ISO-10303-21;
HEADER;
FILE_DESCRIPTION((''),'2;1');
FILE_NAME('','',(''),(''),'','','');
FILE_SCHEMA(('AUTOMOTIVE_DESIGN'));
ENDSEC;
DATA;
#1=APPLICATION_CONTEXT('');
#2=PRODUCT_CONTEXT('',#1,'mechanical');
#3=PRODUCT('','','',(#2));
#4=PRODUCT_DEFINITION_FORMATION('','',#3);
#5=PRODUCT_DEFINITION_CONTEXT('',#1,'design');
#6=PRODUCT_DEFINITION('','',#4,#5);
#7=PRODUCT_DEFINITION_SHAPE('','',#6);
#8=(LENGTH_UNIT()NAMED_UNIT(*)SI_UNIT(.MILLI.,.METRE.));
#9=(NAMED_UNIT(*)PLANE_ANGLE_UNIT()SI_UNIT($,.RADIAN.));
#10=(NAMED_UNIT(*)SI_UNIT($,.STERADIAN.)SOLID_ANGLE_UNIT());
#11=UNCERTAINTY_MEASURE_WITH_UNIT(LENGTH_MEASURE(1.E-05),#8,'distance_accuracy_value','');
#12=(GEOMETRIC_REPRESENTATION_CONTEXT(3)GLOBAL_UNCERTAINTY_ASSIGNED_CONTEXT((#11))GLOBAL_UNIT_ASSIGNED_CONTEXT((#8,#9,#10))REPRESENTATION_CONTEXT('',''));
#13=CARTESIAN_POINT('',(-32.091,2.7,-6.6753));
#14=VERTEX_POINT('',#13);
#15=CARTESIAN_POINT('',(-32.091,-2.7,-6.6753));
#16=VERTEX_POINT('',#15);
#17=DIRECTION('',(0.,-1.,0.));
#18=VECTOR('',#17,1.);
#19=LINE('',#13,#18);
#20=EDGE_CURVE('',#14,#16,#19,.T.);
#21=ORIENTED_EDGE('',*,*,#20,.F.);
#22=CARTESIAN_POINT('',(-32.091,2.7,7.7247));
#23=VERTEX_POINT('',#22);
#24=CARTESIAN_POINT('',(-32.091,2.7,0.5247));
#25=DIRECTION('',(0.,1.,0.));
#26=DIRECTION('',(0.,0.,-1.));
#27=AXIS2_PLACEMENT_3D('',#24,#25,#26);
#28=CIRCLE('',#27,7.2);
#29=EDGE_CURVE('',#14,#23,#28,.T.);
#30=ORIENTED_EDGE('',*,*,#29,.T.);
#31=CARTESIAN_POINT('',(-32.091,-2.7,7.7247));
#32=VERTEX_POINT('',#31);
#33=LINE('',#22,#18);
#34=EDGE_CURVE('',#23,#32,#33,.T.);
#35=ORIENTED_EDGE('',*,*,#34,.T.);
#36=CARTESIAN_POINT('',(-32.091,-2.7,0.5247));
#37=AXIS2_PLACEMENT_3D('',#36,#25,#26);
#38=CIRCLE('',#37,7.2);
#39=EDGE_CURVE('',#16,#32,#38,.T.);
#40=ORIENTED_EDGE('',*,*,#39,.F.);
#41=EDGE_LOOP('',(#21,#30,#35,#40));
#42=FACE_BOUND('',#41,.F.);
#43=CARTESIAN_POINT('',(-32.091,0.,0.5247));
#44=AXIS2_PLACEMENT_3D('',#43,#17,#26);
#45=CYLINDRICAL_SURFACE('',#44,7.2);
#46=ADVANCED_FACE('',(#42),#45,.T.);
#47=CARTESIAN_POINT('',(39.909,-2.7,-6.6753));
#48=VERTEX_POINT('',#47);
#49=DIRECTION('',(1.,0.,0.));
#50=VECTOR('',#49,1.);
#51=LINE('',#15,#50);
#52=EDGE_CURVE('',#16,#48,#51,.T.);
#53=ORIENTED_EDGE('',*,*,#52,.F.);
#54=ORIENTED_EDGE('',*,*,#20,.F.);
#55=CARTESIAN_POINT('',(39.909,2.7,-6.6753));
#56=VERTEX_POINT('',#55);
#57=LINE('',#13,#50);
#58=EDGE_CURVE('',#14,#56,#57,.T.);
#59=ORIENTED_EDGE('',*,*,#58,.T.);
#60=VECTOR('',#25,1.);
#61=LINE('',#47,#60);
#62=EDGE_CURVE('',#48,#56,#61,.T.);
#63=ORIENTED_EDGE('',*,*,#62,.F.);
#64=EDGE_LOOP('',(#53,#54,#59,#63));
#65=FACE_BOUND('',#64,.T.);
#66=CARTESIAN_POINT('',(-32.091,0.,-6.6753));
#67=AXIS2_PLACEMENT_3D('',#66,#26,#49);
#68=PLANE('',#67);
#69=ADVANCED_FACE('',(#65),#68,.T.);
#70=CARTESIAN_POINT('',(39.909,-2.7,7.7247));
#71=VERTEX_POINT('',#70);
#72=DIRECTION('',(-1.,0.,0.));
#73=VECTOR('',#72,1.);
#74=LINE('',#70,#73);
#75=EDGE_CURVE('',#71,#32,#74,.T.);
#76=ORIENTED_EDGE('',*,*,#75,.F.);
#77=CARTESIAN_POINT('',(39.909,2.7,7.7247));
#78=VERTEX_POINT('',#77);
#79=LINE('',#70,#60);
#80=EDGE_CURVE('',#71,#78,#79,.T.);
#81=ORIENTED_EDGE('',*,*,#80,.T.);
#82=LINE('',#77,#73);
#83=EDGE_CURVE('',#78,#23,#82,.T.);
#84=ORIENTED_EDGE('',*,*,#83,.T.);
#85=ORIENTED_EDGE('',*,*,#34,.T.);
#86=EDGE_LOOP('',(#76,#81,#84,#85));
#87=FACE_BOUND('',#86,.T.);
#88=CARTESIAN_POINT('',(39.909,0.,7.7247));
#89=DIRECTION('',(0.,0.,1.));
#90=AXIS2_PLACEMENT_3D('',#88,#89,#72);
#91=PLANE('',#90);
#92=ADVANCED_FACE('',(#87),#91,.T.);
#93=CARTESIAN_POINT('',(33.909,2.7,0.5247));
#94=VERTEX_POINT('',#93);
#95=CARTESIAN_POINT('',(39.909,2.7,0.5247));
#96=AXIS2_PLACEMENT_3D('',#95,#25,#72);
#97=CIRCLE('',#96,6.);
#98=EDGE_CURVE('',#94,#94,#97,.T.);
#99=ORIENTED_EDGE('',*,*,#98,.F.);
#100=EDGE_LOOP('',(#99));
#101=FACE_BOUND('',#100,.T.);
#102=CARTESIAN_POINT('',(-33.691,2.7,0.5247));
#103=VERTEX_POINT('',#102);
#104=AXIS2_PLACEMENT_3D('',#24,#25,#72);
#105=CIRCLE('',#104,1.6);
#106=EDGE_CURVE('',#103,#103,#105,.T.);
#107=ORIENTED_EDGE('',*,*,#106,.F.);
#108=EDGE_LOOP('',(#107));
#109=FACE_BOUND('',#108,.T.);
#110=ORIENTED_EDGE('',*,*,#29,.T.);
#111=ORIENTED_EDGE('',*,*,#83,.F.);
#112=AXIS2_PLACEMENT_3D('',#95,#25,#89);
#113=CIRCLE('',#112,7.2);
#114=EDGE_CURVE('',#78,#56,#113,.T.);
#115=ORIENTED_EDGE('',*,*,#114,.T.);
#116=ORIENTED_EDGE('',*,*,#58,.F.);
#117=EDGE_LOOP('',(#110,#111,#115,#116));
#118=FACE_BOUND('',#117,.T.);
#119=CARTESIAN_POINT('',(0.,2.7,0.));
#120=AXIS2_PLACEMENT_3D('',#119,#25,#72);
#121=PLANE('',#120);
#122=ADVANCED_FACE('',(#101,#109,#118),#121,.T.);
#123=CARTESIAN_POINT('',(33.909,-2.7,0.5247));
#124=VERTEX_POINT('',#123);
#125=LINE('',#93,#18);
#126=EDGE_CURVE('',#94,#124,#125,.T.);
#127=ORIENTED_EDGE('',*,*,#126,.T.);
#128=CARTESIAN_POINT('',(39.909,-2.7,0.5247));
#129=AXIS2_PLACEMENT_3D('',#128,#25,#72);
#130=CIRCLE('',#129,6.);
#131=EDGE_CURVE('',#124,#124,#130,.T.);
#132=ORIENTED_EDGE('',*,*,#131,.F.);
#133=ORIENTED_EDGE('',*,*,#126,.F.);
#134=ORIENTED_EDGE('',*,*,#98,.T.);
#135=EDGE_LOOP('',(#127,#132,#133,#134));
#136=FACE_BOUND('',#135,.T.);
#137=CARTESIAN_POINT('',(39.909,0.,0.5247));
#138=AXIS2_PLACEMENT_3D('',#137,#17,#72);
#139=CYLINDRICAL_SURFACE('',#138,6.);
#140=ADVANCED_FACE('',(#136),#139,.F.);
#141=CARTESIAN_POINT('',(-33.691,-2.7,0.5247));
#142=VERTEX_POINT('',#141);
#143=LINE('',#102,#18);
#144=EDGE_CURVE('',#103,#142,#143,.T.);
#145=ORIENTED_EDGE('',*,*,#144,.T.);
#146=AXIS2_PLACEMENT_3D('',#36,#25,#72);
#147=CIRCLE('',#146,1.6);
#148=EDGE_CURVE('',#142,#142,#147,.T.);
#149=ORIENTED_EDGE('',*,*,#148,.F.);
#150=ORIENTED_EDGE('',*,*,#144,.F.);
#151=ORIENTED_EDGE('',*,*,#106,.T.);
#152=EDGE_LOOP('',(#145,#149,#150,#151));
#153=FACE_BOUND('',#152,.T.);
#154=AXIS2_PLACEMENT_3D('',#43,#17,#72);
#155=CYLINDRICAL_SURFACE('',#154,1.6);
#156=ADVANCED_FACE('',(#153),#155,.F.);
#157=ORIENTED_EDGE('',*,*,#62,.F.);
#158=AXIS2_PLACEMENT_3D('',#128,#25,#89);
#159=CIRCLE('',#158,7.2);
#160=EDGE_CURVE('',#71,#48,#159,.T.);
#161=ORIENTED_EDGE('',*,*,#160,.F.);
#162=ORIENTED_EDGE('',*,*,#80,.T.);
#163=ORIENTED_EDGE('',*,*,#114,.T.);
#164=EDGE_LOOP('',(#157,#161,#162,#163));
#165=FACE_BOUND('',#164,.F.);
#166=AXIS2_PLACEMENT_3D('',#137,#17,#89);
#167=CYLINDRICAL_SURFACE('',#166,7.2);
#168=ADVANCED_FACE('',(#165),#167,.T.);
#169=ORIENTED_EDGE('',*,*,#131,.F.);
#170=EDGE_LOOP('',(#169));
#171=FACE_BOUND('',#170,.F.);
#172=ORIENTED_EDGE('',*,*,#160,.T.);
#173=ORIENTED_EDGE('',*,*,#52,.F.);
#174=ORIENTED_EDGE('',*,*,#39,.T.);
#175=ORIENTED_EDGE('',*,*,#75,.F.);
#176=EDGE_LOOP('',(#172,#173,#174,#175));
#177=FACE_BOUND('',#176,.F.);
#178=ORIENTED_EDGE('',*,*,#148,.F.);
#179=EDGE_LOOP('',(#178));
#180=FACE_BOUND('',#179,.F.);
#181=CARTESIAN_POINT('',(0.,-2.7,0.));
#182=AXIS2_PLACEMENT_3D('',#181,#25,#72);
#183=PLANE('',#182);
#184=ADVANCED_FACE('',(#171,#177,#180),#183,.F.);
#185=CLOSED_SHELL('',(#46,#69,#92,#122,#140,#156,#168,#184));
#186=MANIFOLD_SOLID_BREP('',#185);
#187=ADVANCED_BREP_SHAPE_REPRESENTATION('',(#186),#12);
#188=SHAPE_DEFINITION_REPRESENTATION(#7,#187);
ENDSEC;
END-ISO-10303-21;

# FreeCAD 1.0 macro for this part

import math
import FreeCAD as App
import Part
import Sketcher
from FreeCAD import Vector
Q = App.Units.Quantity

doc = App.newDocument("Part")
body = doc.addObject("PartDesign::Body", "Body")

# Sketch on XZ plane
sketch1 = body.newObject("Sketcher::SketchObject", "Sketch")
sketch1.AttachmentSupport = (doc.getObject("XZ_Plane"), [""])
sketch1.MapMode = "FlatFace"
sketch1.addGeometry([
    Part.LineSegment(Vector(-32.1, 7.7, 0), Vector(39.9, 7.7, 0)),  # 0
    Part.ArcOfCircle(Part.Circle(Vector(39.9, 0.5, 0), Vector(0, 0, 1), 7.2), math.radians(-90), math.radians(90)),  # 1
    Part.LineSegment(Vector(39.9, -6.7, 0), Vector(-32.1, -6.7, 0)),  # 2
    Part.ArcOfCircle(Part.Circle(Vector(-32.1, 0.5, 0), Vector(0, 0, 1), 7.2), math.radians(90), math.radians(270)),  # 3
    Part.Circle(Vector(39.9, 0.5, 0), Vector(0, 0, 1), 6),  # 4
    Part.Circle(Vector(-32.1, 0.5, 0), Vector(0, 0, 1), 1.6),  # 5
], False)
sketch1.addConstraint([
    Sketcher.Constraint("Tangent", 0, 2, 1, 2),
    Sketcher.Constraint("Tangent", 1, 1, 2, 1),
    Sketcher.Constraint("Tangent", 2, 2, 3, 2),
    Sketcher.Constraint("Tangent", 3, 1, 0, 1),
    Sketcher.Constraint("Horizontal", 0),
    Sketcher.Constraint("Horizontal", 2),
    Sketcher.Constraint("Coincident", 4, 3, 1, 3),
    Sketcher.Constraint("Coincident", 5, 3, 3, 3),
    Sketcher.Constraint("Diameter", 4, Q("12 mm")),
    Sketcher.Constraint("Diameter", 5, Q("3.2 mm")),
    Sketcher.Constraint("Radius", 1, Q("7.2 mm")),
    Sketcher.Constraint("DistanceX", 0, 1, 0, 2, Q("72 mm")),
    Sketcher.Constraint("DistanceX", -1, 1, 1, 3, Q("39.909 mm")),
    Sketcher.Constraint("DistanceY", -1, 1, 1, 3, Q("0.5247 mm")),
])
pad1 = body.newObject("PartDesign::Pad", "Pad")
pad1.Profile = sketch1
pad1.Length = 5.4
pad1.Midplane = True

doc.recompute()
